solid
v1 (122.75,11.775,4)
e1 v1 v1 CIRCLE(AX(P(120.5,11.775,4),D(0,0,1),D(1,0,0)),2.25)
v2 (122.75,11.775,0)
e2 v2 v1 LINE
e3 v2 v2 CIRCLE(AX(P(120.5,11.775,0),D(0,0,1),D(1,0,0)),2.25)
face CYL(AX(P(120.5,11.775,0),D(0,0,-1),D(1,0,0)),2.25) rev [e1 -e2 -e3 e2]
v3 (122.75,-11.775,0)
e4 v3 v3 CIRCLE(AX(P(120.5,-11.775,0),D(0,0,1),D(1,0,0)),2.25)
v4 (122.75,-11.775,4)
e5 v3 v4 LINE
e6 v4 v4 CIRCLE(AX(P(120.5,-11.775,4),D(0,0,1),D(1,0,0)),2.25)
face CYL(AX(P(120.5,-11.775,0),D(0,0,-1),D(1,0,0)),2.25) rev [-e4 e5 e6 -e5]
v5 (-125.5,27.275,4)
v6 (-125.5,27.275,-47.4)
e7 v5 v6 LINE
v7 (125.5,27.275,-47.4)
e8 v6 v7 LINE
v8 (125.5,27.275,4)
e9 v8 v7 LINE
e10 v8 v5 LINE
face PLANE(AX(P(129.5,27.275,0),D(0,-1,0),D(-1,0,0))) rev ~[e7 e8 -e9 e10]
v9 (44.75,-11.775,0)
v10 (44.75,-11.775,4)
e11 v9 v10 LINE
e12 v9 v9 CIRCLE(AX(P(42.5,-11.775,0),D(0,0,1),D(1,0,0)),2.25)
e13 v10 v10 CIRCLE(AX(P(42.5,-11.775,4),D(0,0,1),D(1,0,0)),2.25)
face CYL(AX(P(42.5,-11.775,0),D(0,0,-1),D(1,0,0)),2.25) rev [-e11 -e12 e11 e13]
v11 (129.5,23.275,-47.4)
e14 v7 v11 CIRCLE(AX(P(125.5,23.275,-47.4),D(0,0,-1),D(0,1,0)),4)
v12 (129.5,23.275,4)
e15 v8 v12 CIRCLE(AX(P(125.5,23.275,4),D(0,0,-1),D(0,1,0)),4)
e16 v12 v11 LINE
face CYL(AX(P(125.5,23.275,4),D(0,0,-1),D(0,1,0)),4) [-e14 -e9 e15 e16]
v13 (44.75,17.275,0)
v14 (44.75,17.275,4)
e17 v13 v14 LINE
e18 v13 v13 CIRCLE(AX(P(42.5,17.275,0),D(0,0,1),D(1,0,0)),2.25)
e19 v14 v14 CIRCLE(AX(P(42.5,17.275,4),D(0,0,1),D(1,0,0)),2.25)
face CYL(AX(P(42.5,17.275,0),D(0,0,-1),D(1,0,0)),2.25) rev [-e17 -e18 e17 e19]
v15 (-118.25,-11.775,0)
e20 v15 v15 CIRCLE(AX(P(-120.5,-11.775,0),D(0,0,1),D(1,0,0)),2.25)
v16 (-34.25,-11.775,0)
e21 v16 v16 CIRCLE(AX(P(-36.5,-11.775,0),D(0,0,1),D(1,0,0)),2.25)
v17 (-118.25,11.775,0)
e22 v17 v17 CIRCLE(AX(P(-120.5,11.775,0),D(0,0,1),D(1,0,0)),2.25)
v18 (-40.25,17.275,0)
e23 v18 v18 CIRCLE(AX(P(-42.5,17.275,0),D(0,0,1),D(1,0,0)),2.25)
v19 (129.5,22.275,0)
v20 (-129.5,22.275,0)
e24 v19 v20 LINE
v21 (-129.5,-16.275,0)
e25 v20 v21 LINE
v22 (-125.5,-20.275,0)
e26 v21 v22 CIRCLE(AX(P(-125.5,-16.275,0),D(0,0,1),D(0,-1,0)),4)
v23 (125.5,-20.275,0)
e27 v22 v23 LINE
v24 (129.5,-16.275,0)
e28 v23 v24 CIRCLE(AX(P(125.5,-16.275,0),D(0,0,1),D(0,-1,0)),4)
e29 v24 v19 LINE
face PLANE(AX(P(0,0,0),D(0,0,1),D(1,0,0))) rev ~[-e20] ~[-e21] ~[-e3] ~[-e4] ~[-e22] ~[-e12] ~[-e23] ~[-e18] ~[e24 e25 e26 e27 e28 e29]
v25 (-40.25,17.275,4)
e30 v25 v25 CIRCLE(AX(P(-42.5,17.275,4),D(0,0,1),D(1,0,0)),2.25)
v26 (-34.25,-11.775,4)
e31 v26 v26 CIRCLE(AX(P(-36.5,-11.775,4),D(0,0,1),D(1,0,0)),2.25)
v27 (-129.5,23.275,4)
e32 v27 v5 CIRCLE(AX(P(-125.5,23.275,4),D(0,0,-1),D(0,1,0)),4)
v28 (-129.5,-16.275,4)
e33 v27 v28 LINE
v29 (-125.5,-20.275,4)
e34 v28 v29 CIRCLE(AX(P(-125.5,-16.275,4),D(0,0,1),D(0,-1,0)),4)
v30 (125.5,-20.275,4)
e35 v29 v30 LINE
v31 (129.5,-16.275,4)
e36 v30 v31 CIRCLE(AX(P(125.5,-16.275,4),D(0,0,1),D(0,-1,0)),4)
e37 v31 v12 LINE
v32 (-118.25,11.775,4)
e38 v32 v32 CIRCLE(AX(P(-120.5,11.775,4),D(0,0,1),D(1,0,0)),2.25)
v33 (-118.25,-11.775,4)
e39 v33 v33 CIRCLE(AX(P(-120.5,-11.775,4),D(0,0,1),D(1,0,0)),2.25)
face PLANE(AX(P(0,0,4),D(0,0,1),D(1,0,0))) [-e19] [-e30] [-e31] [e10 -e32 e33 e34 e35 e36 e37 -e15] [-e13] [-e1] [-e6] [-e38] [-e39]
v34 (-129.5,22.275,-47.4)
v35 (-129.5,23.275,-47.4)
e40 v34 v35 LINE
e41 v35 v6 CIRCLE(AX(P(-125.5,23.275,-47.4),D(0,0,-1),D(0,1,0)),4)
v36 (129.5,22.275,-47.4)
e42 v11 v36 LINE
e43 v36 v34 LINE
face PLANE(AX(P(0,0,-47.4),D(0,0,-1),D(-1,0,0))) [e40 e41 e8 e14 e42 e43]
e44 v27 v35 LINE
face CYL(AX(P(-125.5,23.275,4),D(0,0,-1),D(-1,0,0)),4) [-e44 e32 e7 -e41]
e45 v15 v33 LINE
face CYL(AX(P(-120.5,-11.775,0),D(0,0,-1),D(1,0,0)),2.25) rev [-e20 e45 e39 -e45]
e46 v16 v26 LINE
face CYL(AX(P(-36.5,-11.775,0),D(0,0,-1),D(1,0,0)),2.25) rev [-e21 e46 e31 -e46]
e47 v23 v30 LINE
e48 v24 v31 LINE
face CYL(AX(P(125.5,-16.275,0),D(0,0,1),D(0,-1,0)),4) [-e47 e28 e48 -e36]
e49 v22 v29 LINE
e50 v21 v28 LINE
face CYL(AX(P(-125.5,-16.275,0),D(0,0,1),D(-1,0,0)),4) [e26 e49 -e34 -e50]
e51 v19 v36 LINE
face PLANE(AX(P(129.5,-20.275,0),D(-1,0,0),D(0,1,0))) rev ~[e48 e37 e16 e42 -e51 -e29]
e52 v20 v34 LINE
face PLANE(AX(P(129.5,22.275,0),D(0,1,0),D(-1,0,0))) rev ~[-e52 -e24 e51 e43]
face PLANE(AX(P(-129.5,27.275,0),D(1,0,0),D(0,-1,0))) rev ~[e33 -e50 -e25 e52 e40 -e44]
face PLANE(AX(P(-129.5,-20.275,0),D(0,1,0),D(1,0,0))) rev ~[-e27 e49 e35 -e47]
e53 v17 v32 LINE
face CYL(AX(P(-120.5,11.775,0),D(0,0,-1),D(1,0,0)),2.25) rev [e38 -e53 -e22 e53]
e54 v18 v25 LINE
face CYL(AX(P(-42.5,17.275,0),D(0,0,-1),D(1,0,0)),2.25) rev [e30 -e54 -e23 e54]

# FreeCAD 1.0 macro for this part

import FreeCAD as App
import Part
import Sketcher
from FreeCAD import Vector
Q = App.Units.Quantity


def edges_at(feature, points):
    """Names of the edges that pass closest to the given points."""
    edges = feature.Shape.Edges
    near = lambda p: min(range(len(edges)), key=lambda i: edges[i].distToShape(Part.Vertex(*p))[0])
    return sorted({f"Edge{near(p) + 1}" for p in points})


def add_polygon(sketch, points):
    """Adds a closed chain of lines whose ends are joined by coincident constraints."""
    first, n = sketch.GeometryCount, len(points)
    for a, b in zip(points, points[1:] + points[:1]):
        sketch.addGeometry(Part.LineSegment(App.Vector(*a, 0), App.Vector(*b, 0)), False)
    for i in range(n):
        sketch.addConstraint(Sketcher.Constraint("Coincident", first + i, 2, first + (i + 1) % n, 1))

doc = App.newDocument("Part")
params = doc.addObject("Spreadsheet::Sheet", "Params")
for row, (alias, value) in enumerate([
    ("sketch1_diameter", "4.5 mm"),
    ("pad1_length", "4 mm"),
    ("sketch2_width", "259 mm"),
    ("sketch2_height", "5 mm"),
    ("pad2_length", "47.4 mm"),
    ("fillet_radius", "4 mm"),
    ("fillet2_radius", "4 mm"),
], start=1):
    params.set(f"A{row}", alias)
    params.set(f"B{row}", "=" + value)
    params.setAlias(f"B{row}", alias)

body = doc.addObject("PartDesign::Body", "Body")

# Sketch on XY plane
sketch1 = body.newObject("Sketcher::SketchObject", "Sketch")
sketch1.AttachmentSupport = (doc.getObject("XY_Plane"), [""])
sketch1.MapMode = "FlatFace"
add_polygon(sketch1, [(-129.5, 27.3), (-129.5, -20.3), (129.5, -20.3), (129.5, 27.3)])  # lines 0-3
sketch1.addGeometry(Part.Circle(Vector(-120.5, -11.8, 0), Vector(0, 0, 1), 2.2), False)  # 4
sketch1.addGeometry(Part.Circle(Vector(-36.5, -11.8, 0), Vector(0, 0, 1), 2.2), False)  # 5
sketch1.addGeometry(Part.Circle(Vector(42.5, -11.8, 0), Vector(0, 0, 1), 2.2), False)  # 6
sketch1.addGeometry(Part.Circle(Vector(120.5, -11.8, 0), Vector(0, 0, 1), 2.2), False)  # 7
sketch1.addGeometry(Part.Circle(Vector(-120.5, 11.8, 0), Vector(0, 0, 1), 2.2), False)  # 8
sketch1.addGeometry(Part.Circle(Vector(-42.5, 17.3, 0), Vector(0, 0, 1), 2.2), False)  # 9
sketch1.addGeometry(Part.Circle(Vector(120.5, 11.8, 0), Vector(0, 0, 1), 2.2), False)  # 10
sketch1.addGeometry(Part.Circle(Vector(42.5, 17.3, 0), Vector(0, 0, 1), 2.2), False)  # 11
sketch1.addConstraint(Sketcher.Constraint("Vertical", 0))
sketch1.addConstraint(Sketcher.Constraint("Horizontal", 1))
sketch1.addConstraint(Sketcher.Constraint("Vertical", 2))
sketch1.addConstraint(Sketcher.Constraint("Horizontal", 3))
sketch1.addConstraint(Sketcher.Constraint("Equal", 4, 5))
sketch1.addConstraint(Sketcher.Constraint("Equal", 5, 6))
sketch1.addConstraint(Sketcher.Constraint("Equal", 6, 7))
sketch1.addConstraint(Sketcher.Constraint("Equal", 7, 8))
sketch1.addConstraint(Sketcher.Constraint("Equal", 8, 9))
sketch1.addConstraint(Sketcher.Constraint("Equal", 9, 10))
sketch1.addConstraint(Sketcher.Constraint("Equal", 10, 11))
sketch1.addConstraint(Sketcher.Constraint("Symmetric", 7, 3, 8, 3, -1, 1))
sketch1.addConstraint(Sketcher.Constraint("Symmetric", 4, 3, 10, 3, -1, 1))
sketch1.addConstraint(Sketcher.Constraint("Symmetric", 4, 3, 7, 3, -2))
sketch1.addConstraint(Sketcher.Constraint("Symmetric", 9, 3, 11, 3, -2))
sketch1.addConstraint(Sketcher.Constraint("Horizontal", 4, 3, 5, 3))
sketch1.addConstraint(Sketcher.Constraint("Horizontal", 5, 3, 6, 3))
sketch1.addConstraint(Sketcher.Constraint("Vertical", 6, 3, 11, 3))
sketch1.addConstraint(Sketcher.Constraint("Diameter", 4, Q("4.5 mm")))
sketch1.addConstraint(Sketcher.Constraint("DistanceX", 4, 3, 5, 3, Q("84 mm")))
sketch1.addConstraint(Sketcher.Constraint("DistanceX", 5, 3, 6, 3, Q("79 mm")))
sketch1.addConstraint(Sketcher.Constraint("DistanceX", 6, 3, 7, 3, Q("78 mm")))
sketch1.addConstraint(Sketcher.Constraint("DistanceX", 0, 2, 4, 3, Q("9 mm")))
sketch1.addConstraint(Sketcher.Constraint("DistanceX", 7, 3, 1, 2, Q("9 mm")))
sketch1.addConstraint(Sketcher.Constraint("DistanceY", 8, 3, 9, 3, Q("5.5 mm")))
sketch1.addConstraint(Sketcher.Constraint("DistanceY", 0, 2, 4, 3, Q("8.5 mm")))
sketch1.addConstraint(Sketcher.Constraint("DistanceY", 4, 3, 8, 3, Q("23.55 mm")))
sketch1.addConstraint(Sketcher.Constraint("DistanceY", 11, 3, 2, 2, Q("10 mm")))
sketch1.setExpression("Constraints[22]", "Params.sketch1_diameter")
pad1 = body.newObject("PartDesign::Pad", "Pad")
pad1.Profile = sketch1
pad1.setExpression("Length", "Params.pad1_length")

# Sketch on XY plane
sketch2 = body.newObject("Sketcher::SketchObject", "Sketch001")
sketch2.AttachmentSupport = (doc.getObject("XY_Plane"), [""])
sketch2.MapMode = "FlatFace"
add_polygon(sketch2, [(130, 27), (130, 22), (-130, 22), (-130, 27)])  # lines 0-3
sketch2.addConstraint(Sketcher.Constraint("Vertical", 0))
sketch2.addConstraint(Sketcher.Constraint("Horizontal", 1))
sketch2.addConstraint(Sketcher.Constraint("Vertical", 2))
sketch2.addConstraint(Sketcher.Constraint("Horizontal", 3))
sketch2.addConstraint(Sketcher.Constraint("DistanceX", 1, 2, 1, 1, Q("259 mm")))
sketch2.addConstraint(Sketcher.Constraint("DistanceY", 0, 2, 0, 1, Q("5 mm")))
sketch2.addConstraint(Sketcher.Constraint("DistanceX", -1, 1, 0, 2, Q("129.5 mm")))
sketch2.addConstraint(Sketcher.Constraint("DistanceY", -1, 1, 0, 2, Q("22.275 mm")))
sketch2.setExpression("Constraints[8]", "Params.sketch2_width")
sketch2.setExpression("Constraints[9]", "Params.sketch2_height")
pad2 = body.newObject("PartDesign::Pad", "Pad001")
pad2.Profile = sketch2
pad2.setExpression("Length", "Params.pad2_length")
pad2.Reversed = True
doc.recompute()

fillet = body.newObject("PartDesign::Fillet", "Fillet")
fillet.Base = (pad2, edges_at(pad2, [(-129.5, -20.275, 2), (129.5, -20.275, 2)]))
fillet.setExpression("Radius", "Params.fillet_radius")
doc.recompute()

fillet2 = body.newObject("PartDesign::Fillet", "Fillet001")
fillet2.Base = (fillet, edges_at(fillet, [(129.5, 27.275, -21.7), (-129.5, 27.275, -21.7)]))
fillet2.setExpression("Radius", "Params.fillet2_radius")

doc.recompute()
